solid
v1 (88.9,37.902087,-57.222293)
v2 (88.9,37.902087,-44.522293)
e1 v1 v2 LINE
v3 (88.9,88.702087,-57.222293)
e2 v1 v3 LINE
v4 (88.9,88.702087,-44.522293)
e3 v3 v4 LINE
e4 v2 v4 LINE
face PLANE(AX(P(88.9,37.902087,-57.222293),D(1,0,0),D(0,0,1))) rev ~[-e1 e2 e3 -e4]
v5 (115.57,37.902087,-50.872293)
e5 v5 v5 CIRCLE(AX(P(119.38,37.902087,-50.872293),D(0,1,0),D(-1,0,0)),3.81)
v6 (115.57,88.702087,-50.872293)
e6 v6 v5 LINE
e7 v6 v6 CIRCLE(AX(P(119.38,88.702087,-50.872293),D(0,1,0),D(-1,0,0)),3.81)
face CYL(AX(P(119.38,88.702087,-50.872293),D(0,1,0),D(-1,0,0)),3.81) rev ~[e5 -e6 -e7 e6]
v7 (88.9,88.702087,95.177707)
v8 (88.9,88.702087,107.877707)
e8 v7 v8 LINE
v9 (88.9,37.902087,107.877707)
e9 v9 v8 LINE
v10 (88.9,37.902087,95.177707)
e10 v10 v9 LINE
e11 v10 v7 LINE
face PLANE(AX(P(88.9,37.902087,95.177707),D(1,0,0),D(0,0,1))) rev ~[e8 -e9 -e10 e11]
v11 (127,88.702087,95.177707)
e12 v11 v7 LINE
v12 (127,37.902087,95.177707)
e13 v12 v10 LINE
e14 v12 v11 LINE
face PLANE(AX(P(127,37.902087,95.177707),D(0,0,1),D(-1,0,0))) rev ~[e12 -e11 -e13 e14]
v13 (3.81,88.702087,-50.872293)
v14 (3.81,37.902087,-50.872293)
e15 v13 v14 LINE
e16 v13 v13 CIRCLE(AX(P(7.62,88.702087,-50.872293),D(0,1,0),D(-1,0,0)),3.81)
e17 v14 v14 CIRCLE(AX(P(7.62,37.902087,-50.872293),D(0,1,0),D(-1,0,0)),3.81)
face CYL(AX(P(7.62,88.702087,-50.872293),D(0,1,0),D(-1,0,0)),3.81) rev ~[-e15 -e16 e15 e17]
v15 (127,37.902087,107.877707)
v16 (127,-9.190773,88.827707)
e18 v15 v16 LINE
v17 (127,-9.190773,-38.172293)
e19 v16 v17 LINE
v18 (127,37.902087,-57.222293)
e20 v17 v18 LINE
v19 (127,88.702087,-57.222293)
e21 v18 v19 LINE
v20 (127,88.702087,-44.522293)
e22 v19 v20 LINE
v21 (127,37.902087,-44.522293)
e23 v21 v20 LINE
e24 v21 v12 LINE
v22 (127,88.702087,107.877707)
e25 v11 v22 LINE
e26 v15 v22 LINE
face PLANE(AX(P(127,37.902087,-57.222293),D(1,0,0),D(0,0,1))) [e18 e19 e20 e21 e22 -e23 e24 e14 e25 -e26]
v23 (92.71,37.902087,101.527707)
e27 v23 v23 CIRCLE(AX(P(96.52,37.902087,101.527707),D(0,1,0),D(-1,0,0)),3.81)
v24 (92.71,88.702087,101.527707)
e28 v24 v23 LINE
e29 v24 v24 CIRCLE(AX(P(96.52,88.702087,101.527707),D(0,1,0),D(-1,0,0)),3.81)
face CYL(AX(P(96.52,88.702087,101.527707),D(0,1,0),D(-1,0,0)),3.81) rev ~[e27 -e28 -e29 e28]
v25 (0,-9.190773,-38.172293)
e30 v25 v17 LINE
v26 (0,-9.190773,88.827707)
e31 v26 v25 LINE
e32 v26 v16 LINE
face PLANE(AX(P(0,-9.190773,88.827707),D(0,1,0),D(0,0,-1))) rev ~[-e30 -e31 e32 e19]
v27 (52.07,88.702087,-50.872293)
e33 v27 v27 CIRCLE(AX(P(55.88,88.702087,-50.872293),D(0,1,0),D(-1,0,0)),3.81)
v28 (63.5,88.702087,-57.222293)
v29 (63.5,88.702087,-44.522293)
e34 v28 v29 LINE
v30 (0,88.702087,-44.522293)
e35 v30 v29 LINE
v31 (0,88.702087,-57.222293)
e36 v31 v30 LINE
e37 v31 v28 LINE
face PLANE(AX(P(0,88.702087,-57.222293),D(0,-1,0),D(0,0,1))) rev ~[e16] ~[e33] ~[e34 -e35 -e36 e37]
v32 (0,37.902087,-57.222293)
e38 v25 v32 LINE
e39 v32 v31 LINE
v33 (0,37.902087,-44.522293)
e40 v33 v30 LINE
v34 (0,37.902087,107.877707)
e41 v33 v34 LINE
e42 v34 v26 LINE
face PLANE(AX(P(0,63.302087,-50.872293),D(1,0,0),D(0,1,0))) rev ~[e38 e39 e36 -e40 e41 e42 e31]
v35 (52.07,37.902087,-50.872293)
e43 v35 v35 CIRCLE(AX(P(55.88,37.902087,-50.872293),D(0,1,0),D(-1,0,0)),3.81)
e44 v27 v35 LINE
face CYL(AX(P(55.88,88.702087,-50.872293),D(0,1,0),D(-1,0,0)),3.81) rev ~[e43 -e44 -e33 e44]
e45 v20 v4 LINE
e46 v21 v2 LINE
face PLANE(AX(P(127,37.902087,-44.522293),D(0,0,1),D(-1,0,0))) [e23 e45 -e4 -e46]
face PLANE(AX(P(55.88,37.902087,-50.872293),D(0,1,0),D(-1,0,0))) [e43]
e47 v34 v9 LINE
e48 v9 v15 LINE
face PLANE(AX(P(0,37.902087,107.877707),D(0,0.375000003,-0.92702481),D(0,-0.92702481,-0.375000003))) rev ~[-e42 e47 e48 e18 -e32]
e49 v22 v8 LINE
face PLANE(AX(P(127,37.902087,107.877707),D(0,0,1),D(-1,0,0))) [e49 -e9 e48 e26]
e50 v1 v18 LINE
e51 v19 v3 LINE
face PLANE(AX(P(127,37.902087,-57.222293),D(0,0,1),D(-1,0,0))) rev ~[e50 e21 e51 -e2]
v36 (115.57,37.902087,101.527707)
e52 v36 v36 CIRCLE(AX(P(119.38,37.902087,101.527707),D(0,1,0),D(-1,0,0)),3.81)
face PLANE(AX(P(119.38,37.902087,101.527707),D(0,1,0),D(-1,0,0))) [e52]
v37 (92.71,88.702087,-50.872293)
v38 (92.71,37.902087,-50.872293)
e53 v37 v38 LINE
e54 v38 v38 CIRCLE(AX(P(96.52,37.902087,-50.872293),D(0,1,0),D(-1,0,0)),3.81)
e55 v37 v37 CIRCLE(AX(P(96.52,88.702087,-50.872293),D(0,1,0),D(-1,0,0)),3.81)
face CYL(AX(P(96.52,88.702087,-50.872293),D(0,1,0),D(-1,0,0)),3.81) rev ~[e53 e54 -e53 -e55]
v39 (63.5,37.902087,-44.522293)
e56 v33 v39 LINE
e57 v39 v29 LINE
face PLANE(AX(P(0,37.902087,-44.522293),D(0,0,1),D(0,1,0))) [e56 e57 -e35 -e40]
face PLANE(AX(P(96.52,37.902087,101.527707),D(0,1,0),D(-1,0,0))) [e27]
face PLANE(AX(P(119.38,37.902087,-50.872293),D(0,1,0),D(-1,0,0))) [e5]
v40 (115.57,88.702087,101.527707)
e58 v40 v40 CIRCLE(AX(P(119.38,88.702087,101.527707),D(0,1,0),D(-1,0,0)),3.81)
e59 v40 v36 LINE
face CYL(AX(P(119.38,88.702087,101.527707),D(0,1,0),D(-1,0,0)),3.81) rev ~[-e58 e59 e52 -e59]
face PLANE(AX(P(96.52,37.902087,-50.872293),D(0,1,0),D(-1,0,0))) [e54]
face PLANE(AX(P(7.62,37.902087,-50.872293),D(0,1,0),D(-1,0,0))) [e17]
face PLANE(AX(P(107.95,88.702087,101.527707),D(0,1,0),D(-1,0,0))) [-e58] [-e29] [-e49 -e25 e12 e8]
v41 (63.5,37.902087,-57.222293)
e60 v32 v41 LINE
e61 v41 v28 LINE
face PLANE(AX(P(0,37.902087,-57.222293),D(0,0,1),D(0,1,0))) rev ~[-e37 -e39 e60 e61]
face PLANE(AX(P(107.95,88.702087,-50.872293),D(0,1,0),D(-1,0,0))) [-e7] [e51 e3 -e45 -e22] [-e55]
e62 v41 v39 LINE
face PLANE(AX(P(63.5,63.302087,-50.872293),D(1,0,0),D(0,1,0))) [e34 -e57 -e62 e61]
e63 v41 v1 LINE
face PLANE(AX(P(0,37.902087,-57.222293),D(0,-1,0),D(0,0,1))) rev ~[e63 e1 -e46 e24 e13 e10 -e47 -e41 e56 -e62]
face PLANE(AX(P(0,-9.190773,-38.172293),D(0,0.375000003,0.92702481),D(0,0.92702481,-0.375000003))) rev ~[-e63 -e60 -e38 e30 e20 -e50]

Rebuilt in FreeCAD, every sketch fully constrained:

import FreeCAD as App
import Part
import Sketcher
Q = App.Units.Quantity

doc = App.newDocument("Part")
body = doc.addObject("PartDesign::Body", "Body")

sketch1 = body.newObject("Sketcher::SketchObject", "Sketch")
sketch1.AttachmentSupport = (doc.getObject("YZ_Plane"), [""])
sketch1.MapMode = "FlatFace"
sketch1.addGeometry([
    Part.LineSegment(App.Vector(38, 108, 0), App.Vector(-9, 89, 0)),
    Part.LineSegment(App.Vector(-9, 89, 0), App.Vector(-9, -38, 0)),
    Part.LineSegment(App.Vector(-9, -38, 0), App.Vector(38, -57, 0)),
    Part.LineSegment(App.Vector(38, -57, 0), App.Vector(38, 108, 0)),
], False)
sketch1.addConstraint([
    Sketcher.Constraint("Coincident", 0, 2, 1, 1),
    Sketcher.Constraint("Coincident", 1, 2, 2, 1),
    Sketcher.Constraint("Coincident", 2, 2, 3, 1),
    Sketcher.Constraint("Coincident", 3, 2, 0, 1),
    Sketcher.Constraint("Vertical", 1),
    Sketcher.Constraint("Vertical", 3),
    Sketcher.Constraint("Equal", 0, 2),
    Sketcher.Constraint("DistanceY", 1, 2, 1, 1, Q("5 in")),
    Sketcher.Constraint("Distance", 0, Q("2 in")),
    Sketcher.Constraint("DistanceY", 3, 1, 3, 2, Q("6.5 in")),
    Sketcher.Constraint("DistanceX", 0, 2, -1, 1, Q("9.190773 mm")),
    Sketcher.Constraint("DistanceY", -1, 1, 0, 2, Q("88.827707 mm")),
])
pad1 = body.newObject("PartDesign::Pad", "Pad")
pad1.Profile = sketch1
pad1.Length = Q("5 in")

sketch2 = body.newObject("Sketcher::SketchObject", "Sketch001")
sketch2.AttachmentSupport = (doc.getObject("YZ_Plane"), [""])
sketch2.MapMode = "FlatFace"
sketch2.addGeometry([
    Part.LineSegment(App.Vector(38, -45, 0), App.Vector(38, -57, 0)),
    Part.LineSegment(App.Vector(38, -57, 0), App.Vector(89, -57, 0)),
    Part.LineSegment(App.Vector(89, -57, 0), App.Vector(89, -45, 0)),
    Part.LineSegment(App.Vector(89, -45, 0), App.Vector(38, -45, 0)),
], False)
sketch2.addConstraint([
    Sketcher.Constraint("Coincident", 0, 2, 1, 1),
    Sketcher.Constraint("Coincident", 1, 2, 2, 1),
    Sketcher.Constraint("Coincident", 2, 2, 3, 1),
    Sketcher.Constraint("Coincident", 3, 2, 0, 1),
    Sketcher.Constraint("Vertical", 0),
    Sketcher.Constraint("Horizontal", 1),
    Sketcher.Constraint("Vertical", 2),
    Sketcher.Constraint("Horizontal", 3),
    Sketcher.Constraint("DistanceX", 1, 1, 1, 2, Q("2 in")),
    Sketcher.Constraint("DistanceY", 0, 2, 0, 1, Q("0.5 in")),
    Sketcher.Constraint("DistanceX", -1, 1, 0, 2, Q("37.902087 mm")),
    Sketcher.Constraint("DistanceY", 0, 2, -1, 1, Q("57.222293 mm")),
])
pad2 = body.newObject("PartDesign::Pad", "Pad001")
pad2.Profile = sketch2
pad2.Length = Q("2.5 in")

sketch3 = body.newObject("Sketcher::SketchObject", "Sketch002")
sketch3.AttachmentSupport = (doc.getObject("XZ_Plane"), [""])
sketch3.MapMode = "FlatFace"
sketch3.AttachmentOffset = App.Placement(App.Vector(0, 0, -37.902087), App.Rotation())
sketch3.addGeometry([
    Part.LineSegment(App.Vector(127, -45, 0), App.Vector(127, -57, 0)),
    Part.LineSegment(App.Vector(127, -57, 0), App.Vector(89, -57, 0)),
    Part.LineSegment(App.Vector(89, -57, 0), App.Vector(89, -45, 0)),
    Part.LineSegment(App.Vector(89, -45, 0), App.Vector(127, -45, 0)),
    Part.LineSegment(App.Vector(127, 108, 0), App.Vector(127, 95, 0)),
    Part.LineSegment(App.Vector(127, 95, 0), App.Vector(89, 95, 0)),
    Part.LineSegment(App.Vector(89, 95, 0), App.Vector(89, 108, 0)),
    Part.LineSegment(App.Vector(89, 108, 0), App.Vector(127, 108, 0)),
], False)
sketch3.addConstraint([
    Sketcher.Constraint("Coincident", 0, 2, 1, 1),
    Sketcher.Constraint("Coincident", 1, 2, 2, 1),
    Sketcher.Constraint("Coincident", 2, 2, 3, 1),
    Sketcher.Constraint("Coincident", 3, 2, 0, 1),
    Sketcher.Constraint("Coincident", 4, 2, 5, 1),
    Sketcher.Constraint("Coincident", 5, 2, 6, 1),
    Sketcher.Constraint("Coincident", 6, 2, 7, 1),
    Sketcher.Constraint("Coincident", 7, 2, 4, 1),
    Sketcher.Constraint("Vertical", 0),
    Sketcher.Constraint("Horizontal", 1),
    Sketcher.Constraint("Vertical", 2),
    Sketcher.Constraint("Horizontal", 3),
    Sketcher.Constraint("Vertical", 4),
    Sketcher.Constraint("Horizontal", 5),
    Sketcher.Constraint("Vertical", 6),
    Sketcher.Constraint("Horizontal", 7),
    Sketcher.Constraint("Vertical", 3, 2, 4, 2),
    Sketcher.Constraint("Vertical", 2, 2, 5, 2),
    Sketcher.Constraint("Equal", 2, 4),
    Sketcher.Constraint("DistanceX", 1, 2, 1, 1, Q("1.5 in")),
    Sketcher.Constraint("DistanceY", 0, 2, 0, 1, Q("0.5 in")),
    Sketcher.Constraint("DistanceX", -1, 1, 0, 2, Q("5 in")),
    Sketcher.Constraint("DistanceY", 0, 2, 4, 2, Q("6 in")),
    Sketcher.Constraint("DistanceY", 0, 2, -1, 1, Q("57.222293 mm")),
])
pad3 = body.newObject("PartDesign::Pad", "Pad002")
pad3.Profile = sketch3
pad3.Length = Q("2 in")
pad3.Reversed = True

sketch4 = body.newObject("Sketcher::SketchObject", "Sketch003")
sketch4.AttachmentSupport = (doc.getObject("XZ_Plane"), [""])
sketch4.MapMode = "FlatFace"
sketch4.AttachmentOffset = App.Placement(App.Vector(0, 0, -88.702087), App.Rotation())
sketch4.addGeometry([
    Part.Circle(App.Vector(96.5, 101.5, 0), App.Vector(0, 0, 1), 3.8),
    Part.Circle(App.Vector(119.4, 101.5, 0), App.Vector(0, 0, 1), 3.8),
], False)
sketch4.addConstraint([
    Sketcher.Constraint("Equal", 0, 1),
    Sketcher.Constraint("Horizontal", 0, 3, 1, 3),
    Sketcher.Constraint("Diameter", 0, Q("0.3 in")),
    Sketcher.Constraint("DistanceX", -1, 1, 0, 3, Q("3.8 in")),
    Sketcher.Constraint("DistanceX", -1, 1, 1, 3, Q("4.7 in")),
    Sketcher.Constraint("DistanceY", -1, 1, 0, 3, Q("101.527707 mm")),
])
pocket1 = body.newObject("PartDesign::Pocket", "Pocket")
pocket1.Profile = sketch4
pocket1.Length = Q("2 in")
pocket1.Reversed = True

sketch5 = body.newObject("Sketcher::SketchObject", "Sketch004")
sketch5.AttachmentSupport = (doc.getObject("XZ_Plane"), [""])
sketch5.MapMode = "FlatFace"
sketch5.AttachmentOffset = App.Placement(App.Vector(0, 0, -88.702087), App.Rotation())
sketch5.addGeometry([
    Part.Circle(App.Vector(96.5, -50.9, 0), App.Vector(0, 0, 1), 3.8),
    Part.Circle(App.Vector(119.4, -50.9, 0), App.Vector(0, 0, 1), 3.8),
], False)
sketch5.addConstraint([
    Sketcher.Constraint("Equal", 0, 1),
    Sketcher.Constraint("Horizontal", 0, 3, 1, 3),
    Sketcher.Constraint("Diameter", 0, Q("0.3 in")),
    Sketcher.Constraint("DistanceX", -1, 1, 0, 3, Q("3.8 in")),
    Sketcher.Constraint("DistanceX", -1, 1, 1, 3, Q("4.7 in")),
    Sketcher.Constraint("DistanceY", 0, 3, -1, 1, Q("50.872293 mm")),
])
pocket2 = body.newObject("PartDesign::Pocket", "Pocket001")
pocket2.Profile = sketch5
pocket2.Length = Q("2 in")
pocket2.Reversed = True

sketch6 = body.newObject("Sketcher::SketchObject", "Sketch005")
sketch6.AttachmentSupport = (doc.getObject("XZ_Plane"), [""])
sketch6.MapMode = "FlatFace"
sketch6.AttachmentOffset = App.Placement(App.Vector(0, 0, -88.702087), App.Rotation())
sketch6.addGeometry([
    Part.Circle(App.Vector(55.9, -50.9, 0), App.Vector(0, 0, 1), 3.8),
    Part.Circle(App.Vector(7.6, -50.9, 0), App.Vector(0, 0, 1), 3.8),
], False)
sketch6.addConstraint([
    Sketcher.Constraint("Equal", 0, 1),
    Sketcher.Constraint("Horizontal", 0, 3, 1, 3),
    Sketcher.Constraint("Diameter", 0, Q("0.3 in")),
    Sketcher.Constraint("DistanceX", -1, 1, 0, 3, Q("2.2 in")),
    Sketcher.Constraint("DistanceX", -1, 1, 1, 3, Q("0.3 in")),
    Sketcher.Constraint("DistanceY", 0, 3, -1, 1, Q("50.872293 mm")),
])
pocket3 = body.newObject("PartDesign::Pocket", "Pocket002")
pocket3.Profile = sketch6
pocket3.Length = Q("2 in")
pocket3.Reversed = True

doc.recompute()
